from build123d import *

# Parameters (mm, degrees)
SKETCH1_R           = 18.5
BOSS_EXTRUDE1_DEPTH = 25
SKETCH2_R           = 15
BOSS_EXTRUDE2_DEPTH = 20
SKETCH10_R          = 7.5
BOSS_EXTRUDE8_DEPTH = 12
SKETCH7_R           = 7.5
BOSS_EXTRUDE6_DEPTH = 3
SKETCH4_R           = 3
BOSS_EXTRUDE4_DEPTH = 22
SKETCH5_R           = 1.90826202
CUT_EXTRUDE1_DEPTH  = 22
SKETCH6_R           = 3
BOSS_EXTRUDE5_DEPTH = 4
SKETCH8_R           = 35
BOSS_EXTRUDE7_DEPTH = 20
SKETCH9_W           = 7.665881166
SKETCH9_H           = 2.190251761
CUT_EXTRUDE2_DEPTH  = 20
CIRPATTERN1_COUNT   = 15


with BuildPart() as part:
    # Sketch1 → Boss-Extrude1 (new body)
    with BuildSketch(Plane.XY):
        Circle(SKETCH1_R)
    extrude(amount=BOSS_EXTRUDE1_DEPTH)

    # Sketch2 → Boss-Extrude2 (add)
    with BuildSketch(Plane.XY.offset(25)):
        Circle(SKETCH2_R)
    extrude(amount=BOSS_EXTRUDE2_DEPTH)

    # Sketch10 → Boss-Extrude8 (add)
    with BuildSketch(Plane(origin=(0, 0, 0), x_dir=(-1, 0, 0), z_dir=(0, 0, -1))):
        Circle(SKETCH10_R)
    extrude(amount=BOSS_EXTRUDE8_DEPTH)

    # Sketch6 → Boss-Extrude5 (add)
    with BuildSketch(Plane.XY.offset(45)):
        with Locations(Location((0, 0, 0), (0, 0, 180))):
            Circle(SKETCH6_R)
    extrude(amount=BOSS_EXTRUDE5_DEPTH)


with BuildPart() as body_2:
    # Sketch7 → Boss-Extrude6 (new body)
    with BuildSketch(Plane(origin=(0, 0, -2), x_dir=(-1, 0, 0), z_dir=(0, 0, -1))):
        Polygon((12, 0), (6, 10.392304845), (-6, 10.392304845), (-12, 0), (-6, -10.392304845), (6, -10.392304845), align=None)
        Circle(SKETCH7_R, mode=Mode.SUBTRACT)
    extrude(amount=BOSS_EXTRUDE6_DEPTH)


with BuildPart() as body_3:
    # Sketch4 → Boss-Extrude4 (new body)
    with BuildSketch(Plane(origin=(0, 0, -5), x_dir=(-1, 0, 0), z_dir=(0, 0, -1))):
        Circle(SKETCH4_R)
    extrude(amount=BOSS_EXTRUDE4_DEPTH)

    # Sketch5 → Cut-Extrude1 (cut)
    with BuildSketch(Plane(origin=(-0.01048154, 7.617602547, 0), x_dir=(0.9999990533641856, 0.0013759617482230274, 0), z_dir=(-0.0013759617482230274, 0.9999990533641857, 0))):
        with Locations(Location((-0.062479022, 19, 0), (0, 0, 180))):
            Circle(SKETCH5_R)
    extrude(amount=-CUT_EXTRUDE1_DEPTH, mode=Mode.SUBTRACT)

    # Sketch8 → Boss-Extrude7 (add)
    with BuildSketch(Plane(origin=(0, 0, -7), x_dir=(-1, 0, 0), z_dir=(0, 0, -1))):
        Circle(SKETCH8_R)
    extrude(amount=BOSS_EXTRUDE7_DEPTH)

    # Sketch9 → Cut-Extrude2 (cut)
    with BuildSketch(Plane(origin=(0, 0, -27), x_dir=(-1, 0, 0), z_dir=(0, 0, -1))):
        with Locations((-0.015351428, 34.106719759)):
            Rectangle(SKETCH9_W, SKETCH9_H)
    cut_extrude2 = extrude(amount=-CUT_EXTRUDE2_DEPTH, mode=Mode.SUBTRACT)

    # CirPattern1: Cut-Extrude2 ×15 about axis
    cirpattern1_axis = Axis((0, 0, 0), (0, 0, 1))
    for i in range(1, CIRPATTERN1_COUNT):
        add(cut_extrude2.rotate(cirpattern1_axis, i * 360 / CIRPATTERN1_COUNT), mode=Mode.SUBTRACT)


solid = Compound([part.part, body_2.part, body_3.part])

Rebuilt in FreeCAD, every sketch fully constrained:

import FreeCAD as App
import Part
import Sketcher
Q = App.Units.Quantity

doc = App.newDocument("Part")
body = doc.addObject("PartDesign::Body", "Body")

# Sketch on XY plane
sketch1 = doc.addObject("Sketcher::SketchObject", "Sketch")
body.addObject(sketch1)
sketch1.AttachmentSupport = (doc.XY_Plane, [""])
sketch1.MapMode = "FlatFace"
sketch1.addGeometry(Part.Circle(App.Vector(0, 0, 0), App.Vector(0, 0, 1), 18), False)
sketch1.addConstraint([
    Sketcher.Constraint("Coincident", 0, 3, -1, 1),
    Sketcher.Constraint("Diameter", 0, Q("37 mm")),
])
pad1 = doc.addObject("PartDesign::Pad", "Pad")
body.addObject(pad1)
pad1.Profile = sketch1
pad1.Length = 25

# Sketch on XY plane
sketch2 = doc.addObject("Sketcher::SketchObject", "Sketch001")
body.addObject(sketch2)
sketch2.AttachmentSupport = (doc.XY_Plane, [""])
sketch2.MapMode = "FlatFace"
sketch2.AttachmentOffset = App.Placement(App.Vector(0, 0, 25), App.Rotation())
sketch2.addGeometry(Part.Circle(App.Vector(0, 0, 0), App.Vector(0, 0, 1), 15), False)
sketch2.addConstraint([
    Sketcher.Constraint("Coincident", 0, 3, -1, 1),
    Sketcher.Constraint("Diameter", 0, Q("30 mm")),
])
pad2 = doc.addObject("PartDesign::Pad", "Pad001")
body.addObject(pad2)
pad2.Profile = sketch2
pad2.Length = 20

# Sketch on XY plane
sketch3 = doc.addObject("Sketcher::SketchObject", "Sketch002")
body.addObject(sketch3)
sketch3.AttachmentSupport = (doc.XY_Plane, [""])
sketch3.MapMode = "FlatFace"
sketch3.addGeometry(Part.Circle(App.Vector(0, 0, 0), App.Vector(0, 0, 1), 8), False)
sketch3.addConstraint([
    Sketcher.Constraint("Coincident", 0, 3, -1, 1),
    Sketcher.Constraint("Diameter", 0, Q("15 mm")),
])
pad3 = doc.addObject("PartDesign::Pad", "Pad002")
body.addObject(pad3)
pad3.Profile = sketch3
pad3.Length = 12
pad3.Reversed = True

# Sketch on XY plane
sketch4 = doc.addObject("Sketcher::SketchObject", "Sketch003")
body.addObject(sketch4)
sketch4.AttachmentSupport = (doc.XY_Plane, [""])
sketch4.MapMode = "FlatFace"
sketch4.AttachmentOffset = App.Placement(App.Vector(0, 0, 45), App.Rotation())
sketch4.addGeometry(Part.Circle(App.Vector(0, 0, 0), App.Vector(0, 0, 1), 3), False)
sketch4.addConstraint([
    Sketcher.Constraint("Coincident", 0, 3, -1, 1),
    Sketcher.Constraint("Diameter", 0, Q("6 mm")),
])
pad4 = doc.addObject("PartDesign::Pad", "Pad003")
body.addObject(pad4)
pad4.Profile = sketch4
pad4.Length = 4
body2 = doc.addObject("PartDesign::Body", "Body001")

# Sketch on XY plane
sketch5 = doc.addObject("Sketcher::SketchObject", "Sketch004")
body2.addObject(sketch5)
sketch5.AttachmentSupport = (doc.getObject("XY_Plane001"), [""])
sketch5.MapMode = "FlatFace"
sketch5.AttachmentOffset = App.Placement(App.Vector(0, 0, -2), App.Rotation())
sketch5.addGeometry([
    Part.LineSegment(App.Vector(-12, 0, 0), App.Vector(-6, 10, 0)),  # 0
    Part.LineSegment(App.Vector(-6, 10, 0), App.Vector(6, 10, 0)),  # 1
    Part.LineSegment(App.Vector(6, 10, 0), App.Vector(12, 0, 0)),  # 2
    Part.LineSegment(App.Vector(12, 0, 0), App.Vector(6, -10, 0)),  # 3
    Part.LineSegment(App.Vector(6, -10, 0), App.Vector(-6, -10, 0)),  # 4
    Part.LineSegment(App.Vector(-6, -10, 0), App.Vector(-12, 0, 0)),  # 5
    Part.Circle(App.Vector(0, 0, 0), App.Vector(0, 0, 1), 8),  # 6
], False)
sketch5.addConstraint([
    Sketcher.Constraint("Coincident", 0, 2, 1, 1),
    Sketcher.Constraint("Coincident", 1, 2, 2, 1),
    Sketcher.Constraint("Coincident", 2, 2, 3, 1),
    Sketcher.Constraint("Coincident", 3, 2, 4, 1),
    Sketcher.Constraint("Coincident", 4, 2, 5, 1),
    Sketcher.Constraint("Coincident", 5, 2, 0, 1),
    Sketcher.Constraint("Horizontal", 1),
    Sketcher.Constraint("Horizontal", 4),
    Sketcher.Constraint("Coincident", 6, 3, -1, 1),
    Sketcher.Constraint("Symmetric", 0, 2, 3, 2, -1, 1),
    Sketcher.Constraint("Symmetric", 2, 2, 5, 2, -1, 1),
    Sketcher.Constraint("PointOnObject", 2, 2, -1),
    Sketcher.Constraint("Parallel", 2, 5),
    Sketcher.Constraint("Vertical", 1, 2, 3, 2),
    Sketcher.Constraint("Diameter", 6, Q("15 mm")),
    Sketcher.Constraint("DistanceX", 1, 1, 1, 2, Q("12 mm")),
    Sketcher.Constraint("Angle", 0, Q("60 deg")),
    Sketcher.Constraint("Distance", 0, Q("12 mm")),
])
pad5 = doc.addObject("PartDesign::Pad", "Pad004")
body2.addObject(pad5)
pad5.Profile = sketch5
pad5.Length = 3
pad5.Reversed = True
body3 = doc.addObject("PartDesign::Body", "Body002")

# Sketch on XY plane
sketch6 = doc.addObject("Sketcher::SketchObject", "Sketch005")
body3.addObject(sketch6)
sketch6.AttachmentSupport = (doc.getObject("XY_Plane002"), [""])
sketch6.MapMode = "FlatFace"
sketch6.AttachmentOffset = App.Placement(App.Vector(0, 0, -5), App.Rotation())
sketch6.addGeometry(Part.Circle(App.Vector(0, 0, 0), App.Vector(0, 0, 1), 3), False)
sketch6.addConstraint([
    Sketcher.Constraint("Coincident", 0, 3, -1, 1),
    Sketcher.Constraint("Diameter", 0, Q("6 mm")),
])
pad6 = doc.addObject("PartDesign::Pad", "Pad005")
body3.addObject(pad6)
pad6.Profile = sketch6
pad6.Length = 22
pad6.Reversed = True

# Sketch on an angled plane
sketch7 = doc.addObject("Sketcher::SketchObject", "Sketch006")
body3.addObject(sketch7)
sketch7.Placement = App.Placement(App.Vector(-0.010482, 7.617603, 0), App.Rotation(App.Vector(0.999999053, 0.001375962, 0), App.Vector(0, 0, -0.999999999), App.Vector(-0.001375962, 0.999999053, 0), "ZXY"))
sketch7.addGeometry(Part.Circle(App.Vector(-0.1, 19, 0), App.Vector(0, 0, 1), 1.9), False)
sketch7.addConstraint([
    Sketcher.Constraint("DistanceY", -1, 1, 0, 3, Q("19 mm")),
    Sketcher.Constraint("Diameter", 0, Q("3.816524 mm")),
    Sketcher.Constraint("DistanceX", 0, 3, -1, 1, Q("0.062479 mm")),
])
pocket1 = doc.addObject("PartDesign::Pocket", "Pocket")
body3.addObject(pocket1)
pocket1.Profile = sketch7
pocket1.Length = 22

# Sketch on XY plane
sketch8 = doc.addObject("Sketcher::SketchObject", "Sketch007")
body3.addObject(sketch8)
sketch8.AttachmentSupport = (doc.getObject("XY_Plane002"), [""])
sketch8.MapMode = "FlatFace"
sketch8.AttachmentOffset = App.Placement(App.Vector(0, 0, -7), App.Rotation())
sketch8.addGeometry(Part.Circle(App.Vector(0, 0, 0), App.Vector(0, 0, 1), 35), False)
sketch8.addConstraint([
    Sketcher.Constraint("Coincident", 0, 3, -1, 1),
    Sketcher.Constraint("Diameter", 0, Q("70 mm")),
])
pad7 = doc.addObject("PartDesign::Pad", "Pad006")
body3.addObject(pad7)
pad7.Profile = sketch8
pad7.Length = 20
pad7.Reversed = True

# Sketch on XY plane
sketch9 = doc.addObject("Sketcher::SketchObject", "Sketch008")
body3.addObject(sketch9)
sketch9.AttachmentSupport = (doc.getObject("XY_Plane002"), [""])
sketch9.MapMode = "FlatFace"
sketch9.AttachmentOffset = App.Placement(App.Vector(0, 0, -27), App.Rotation())
sketch9.addGeometry([
    Part.LineSegment(App.Vector(3.8, 35.2, 0), App.Vector(3.8, 33, 0)),
    Part.LineSegment(App.Vector(3.8, 33, 0), App.Vector(-3.8, 33, 0)),
    Part.LineSegment(App.Vector(-3.8, 33, 0), App.Vector(-3.8, 35.2, 0)),
    Part.LineSegment(App.Vector(-3.8, 35.2, 0), App.Vector(3.8, 35.2, 0)),
], False)
sketch9.addConstraint([
    Sketcher.Constraint("Coincident", 0, 2, 1, 1),
    Sketcher.Constraint("Coincident", 1, 2, 2, 1),
    Sketcher.Constraint("Coincident", 2, 2, 3, 1),
    Sketcher.Constraint("Coincident", 3, 2, 0, 1),
    Sketcher.Constraint("Vertical", 0),
    Sketcher.Constraint("Horizontal", 1),
    Sketcher.Constraint("Vertical", 2),
    Sketcher.Constraint("Horizontal", 3),
    Sketcher.Constraint("DistanceX", 1, 2, 1, 1, Q("7.665881 mm")),
    Sketcher.Constraint("DistanceY", 0, 2, 0, 1, Q("2.190252 mm")),
    Sketcher.Constraint("DistanceX", 1, 2, -1, 1, Q("3.817589 mm")),
    Sketcher.Constraint("DistanceY", -1, 1, 0, 2, Q("33.011594 mm")),
])
pocket2 = doc.addObject("PartDesign::Pocket", "Pocket001")
body3.addObject(pocket2)
pocket2.Profile = sketch9
pocket2.Length = 20
pocket2.Reversed = True
doc.recompute()

polarpattern = doc.addObject("PartDesign::PolarPattern", "PolarPattern")
body3.addObject(polarpattern)
polarpattern.Originals = [pocket2]
polarpattern.Axis = (doc.getObject("Z_Axis002"), [""])
polarpattern.Angle = 360
polarpattern.Occurrences = 15
body3.Tip = polarpattern

doc.recompute()
